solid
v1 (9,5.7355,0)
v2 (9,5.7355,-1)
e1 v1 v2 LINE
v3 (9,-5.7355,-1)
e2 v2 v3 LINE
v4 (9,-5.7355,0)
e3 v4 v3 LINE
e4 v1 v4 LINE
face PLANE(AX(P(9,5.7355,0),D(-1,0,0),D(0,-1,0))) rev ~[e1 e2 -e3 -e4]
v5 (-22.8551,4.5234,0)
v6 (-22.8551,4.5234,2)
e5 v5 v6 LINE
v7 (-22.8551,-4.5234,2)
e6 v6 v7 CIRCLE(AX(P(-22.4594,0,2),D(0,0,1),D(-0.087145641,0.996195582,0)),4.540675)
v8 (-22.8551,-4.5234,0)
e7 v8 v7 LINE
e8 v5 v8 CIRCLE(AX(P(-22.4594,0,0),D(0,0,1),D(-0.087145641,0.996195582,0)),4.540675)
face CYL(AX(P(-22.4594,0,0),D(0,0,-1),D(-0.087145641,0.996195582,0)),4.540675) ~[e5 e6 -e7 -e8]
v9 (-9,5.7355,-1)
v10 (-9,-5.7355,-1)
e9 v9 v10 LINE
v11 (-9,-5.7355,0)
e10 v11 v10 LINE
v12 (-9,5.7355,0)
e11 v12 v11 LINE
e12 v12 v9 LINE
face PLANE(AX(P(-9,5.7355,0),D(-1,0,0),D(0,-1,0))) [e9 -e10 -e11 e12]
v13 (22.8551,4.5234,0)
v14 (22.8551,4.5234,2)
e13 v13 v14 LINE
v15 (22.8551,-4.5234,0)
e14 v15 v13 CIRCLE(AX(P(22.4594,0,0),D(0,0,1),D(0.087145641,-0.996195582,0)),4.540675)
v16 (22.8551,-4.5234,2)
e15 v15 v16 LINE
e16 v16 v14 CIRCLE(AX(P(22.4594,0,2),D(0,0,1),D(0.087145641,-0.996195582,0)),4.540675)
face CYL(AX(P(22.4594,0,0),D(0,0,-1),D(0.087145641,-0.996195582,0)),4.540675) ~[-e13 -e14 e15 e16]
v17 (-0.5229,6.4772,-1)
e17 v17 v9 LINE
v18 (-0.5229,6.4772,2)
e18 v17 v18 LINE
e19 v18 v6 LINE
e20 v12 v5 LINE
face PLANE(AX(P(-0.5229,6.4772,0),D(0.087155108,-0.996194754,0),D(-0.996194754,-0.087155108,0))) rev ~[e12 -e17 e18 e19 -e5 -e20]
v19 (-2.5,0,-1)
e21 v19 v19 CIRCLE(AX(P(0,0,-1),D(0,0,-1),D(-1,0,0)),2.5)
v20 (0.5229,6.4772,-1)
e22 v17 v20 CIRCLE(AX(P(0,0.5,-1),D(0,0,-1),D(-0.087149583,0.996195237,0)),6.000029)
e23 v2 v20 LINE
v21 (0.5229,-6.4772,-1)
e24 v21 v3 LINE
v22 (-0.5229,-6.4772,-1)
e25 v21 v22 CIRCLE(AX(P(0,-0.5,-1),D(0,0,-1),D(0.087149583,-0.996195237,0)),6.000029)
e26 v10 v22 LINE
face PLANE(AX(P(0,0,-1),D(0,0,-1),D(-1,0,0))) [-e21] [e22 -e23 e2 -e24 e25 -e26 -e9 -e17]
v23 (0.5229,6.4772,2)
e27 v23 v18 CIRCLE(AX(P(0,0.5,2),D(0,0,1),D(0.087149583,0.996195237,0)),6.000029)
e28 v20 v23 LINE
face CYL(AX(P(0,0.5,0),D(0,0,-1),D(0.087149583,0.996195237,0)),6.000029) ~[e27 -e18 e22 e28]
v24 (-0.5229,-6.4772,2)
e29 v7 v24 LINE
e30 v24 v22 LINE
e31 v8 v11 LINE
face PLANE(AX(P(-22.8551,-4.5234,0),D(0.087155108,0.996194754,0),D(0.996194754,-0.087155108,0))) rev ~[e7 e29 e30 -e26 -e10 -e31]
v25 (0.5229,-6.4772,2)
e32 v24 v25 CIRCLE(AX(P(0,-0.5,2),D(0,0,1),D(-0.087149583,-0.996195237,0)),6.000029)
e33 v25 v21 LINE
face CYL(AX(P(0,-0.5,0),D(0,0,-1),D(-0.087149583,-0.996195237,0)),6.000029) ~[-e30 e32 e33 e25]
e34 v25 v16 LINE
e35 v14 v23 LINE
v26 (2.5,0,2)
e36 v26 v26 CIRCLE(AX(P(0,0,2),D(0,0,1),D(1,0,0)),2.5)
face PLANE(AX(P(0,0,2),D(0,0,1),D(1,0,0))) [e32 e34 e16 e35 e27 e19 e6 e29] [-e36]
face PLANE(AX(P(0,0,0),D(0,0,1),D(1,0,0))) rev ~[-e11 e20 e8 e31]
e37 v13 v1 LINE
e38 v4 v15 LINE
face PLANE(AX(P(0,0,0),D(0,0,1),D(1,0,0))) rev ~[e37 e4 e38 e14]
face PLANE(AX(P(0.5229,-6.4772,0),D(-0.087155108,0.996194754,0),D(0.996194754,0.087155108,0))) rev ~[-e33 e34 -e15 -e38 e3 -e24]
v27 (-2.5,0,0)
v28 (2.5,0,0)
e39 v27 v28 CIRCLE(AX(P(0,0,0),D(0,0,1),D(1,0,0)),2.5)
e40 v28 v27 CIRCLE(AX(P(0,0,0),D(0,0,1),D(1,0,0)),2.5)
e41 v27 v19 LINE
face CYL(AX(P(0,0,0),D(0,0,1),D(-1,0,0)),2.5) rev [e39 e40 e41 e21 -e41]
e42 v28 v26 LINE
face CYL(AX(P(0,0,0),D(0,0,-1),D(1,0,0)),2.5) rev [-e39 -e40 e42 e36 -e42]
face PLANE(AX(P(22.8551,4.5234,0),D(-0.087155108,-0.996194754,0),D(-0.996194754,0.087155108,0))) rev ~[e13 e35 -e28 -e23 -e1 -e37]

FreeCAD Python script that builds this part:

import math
import FreeCAD as App
import Part
import Sketcher

V = App.Vector
Q = App.Units.Quantity

doc = App.newDocument("Part")
body = doc.addObject("PartDesign::Body", "Body")

# Sketch on XY plane
sketch1 = body.newObject("Sketcher::SketchObject", "Sketch")
sketch1.AttachmentSupport = (doc.getObject("XY_Plane"), [""])
sketch1.MapMode = "FlatFace"
sketch1.addGeometry(Part.ArcOfCircle(Part.Circle(V(22.4594, 0, 0), V(0, 0, 1), 4.540675), math.radians(-85.000581), math.radians(85.000581)), False)
sketch1.addGeometry(Part.LineSegment(V(22.8551, 4.5234, 0), V(0.5229, 6.4772, 0)), False)
sketch1.addGeometry(Part.ArcOfCircle(Part.Circle(V(0, 0.5, 0), V(0, 0, 1), 6.000029), math.radians(85.000354), math.radians(94.999646)), False)
sketch1.addGeometry(Part.LineSegment(V(-0.5229, 6.4772, 0), V(-22.8551, 4.5234, 0)), False)
sketch1.addGeometry(Part.ArcOfCircle(Part.Circle(V(-22.4594, 0, 0), V(0, 0, 1), 4.540675), math.radians(94.999419), math.radians(265.000581)), False)
sketch1.addGeometry(Part.LineSegment(V(-22.8551, -4.5234, 0), V(-0.5229, -6.4772, 0)), False)
sketch1.addGeometry(Part.ArcOfCircle(Part.Circle(V(0, -0.5, 0), V(0, 0, 1), 6.000029), math.radians(-94.999646), math.radians(-85.000354)), False)
sketch1.addGeometry(Part.LineSegment(V(0.5229, -6.4772, 0), V(22.8551, -4.5234, 0)), False)
sketch1.addGeometry(Part.Circle(V(0, 0, 0), V(0, 0, 1), 2.5), False)
sketch1.addConstraint(Sketcher.Constraint("Tangent", 0, 2, 1, 1))
sketch1.addConstraint(Sketcher.Constraint("Tangent", 1, 2, 2, 1))
sketch1.addConstraint(Sketcher.Constraint("Tangent", 2, 2, 3, 1))
sketch1.addConstraint(Sketcher.Constraint("Tangent", 3, 2, 4, 1))
sketch1.addConstraint(Sketcher.Constraint("Tangent", 4, 2, 5, 1))
sketch1.addConstraint(Sketcher.Constraint("Tangent", 5, 2, 6, 1))
sketch1.addConstraint(Sketcher.Constraint("Tangent", 6, 2, 7, 1))
sketch1.addConstraint(Sketcher.Constraint("Tangent", 7, 2, 0, 1))
sketch1.addConstraint(Sketcher.Constraint("Coincident", 8, 3, -1, 1))
sketch1.addConstraint(Sketcher.Constraint("Equal", 0, 4))
sketch1.addConstraint(Sketcher.Constraint("Equal", 2, 6))
sketch1.addConstraint(Sketcher.Constraint("Symmetric", 0, 3, 4, 3, -1, 1))
sketch1.addConstraint(Sketcher.Constraint("Symmetric", 2, 3, 6, 3, -1, 1))
sketch1.addConstraint(Sketcher.Constraint("Symmetric", 1, 2, 2, 2, -2))
sketch1.addConstraint(Sketcher.Constraint("Diameter", 8, 5.0))
sketch1.addConstraint(Sketcher.Constraint("Radius", 2, 6.0))
sketch1.addConstraint(Sketcher.Constraint("Angle", 5, Q("-5 deg")))
sketch1.addConstraint(Sketcher.Constraint("DistanceY", 6, 3, 2, 3, 1.0))
sketch1.addConstraint(Sketcher.Constraint("Radius", 0, 4.5407))
pad1 = body.newObject("PartDesign::Pad", "Pad")
pad1.Profile = sketch1
pad1.Length = 2

# Sketch on XY plane
sketch2 = body.newObject("Sketcher::SketchObject", "Sketch001")
sketch2.AttachmentSupport = (doc.getObject("XY_Plane"), [""])
sketch2.MapMode = "FlatFace"
sketch2.addGeometry(Part.LineSegment(V(-9.000005, 5.735555, 0), V(-0.5229, 6.4772, 0)), False)
sketch2.addGeometry(Part.ArcOfCircle(Part.Circle(V(0, 0.5, 0), V(0, 0, 1), 6.000029), math.radians(85.000354), math.radians(94.999646)), False)
sketch2.addGeometry(Part.LineSegment(V(0.5229, 6.4772, 0), V(9.000005, 5.735555, 0)), False)
sketch2.addGeometry(Part.LineSegment(V(9, 5.7355, 0), V(9, -5.7355, 0)), False)
sketch2.addGeometry(Part.LineSegment(V(9.000005, -5.735555, 0), V(0.5229, -6.4772, 0)), False)
sketch2.addGeometry(Part.ArcOfCircle(Part.Circle(V(0, -0.5, 0), V(0, 0, 1), 6.000029), math.radians(-94.999646), math.radians(-85.000354)), False)
sketch2.addGeometry(Part.LineSegment(V(-0.5229, -6.4772, 0), V(-9.000005, -5.735555, 0)), False)
sketch2.addGeometry(Part.LineSegment(V(-9, -5.7355, 0), V(-9, 5.7355, 0)), False)
sketch2.addGeometry(Part.Circle(V(0, 0, 0), V(0, 0, 1), 2.5), False)
sketch2.addConstraint(Sketcher.Constraint("Tangent", 0, 2, 1, 2))
sketch2.addConstraint(Sketcher.Constraint("Tangent", 1, 1, 2, 1))
sketch2.addConstraint(Sketcher.Constraint("Coincident", 2, 2, 3, 1))
sketch2.addConstraint(Sketcher.Constraint("Coincident", 3, 2, 4, 1))
sketch2.addConstraint(Sketcher.Constraint("Tangent", 4, 2, 5, 2))
sketch2.addConstraint(Sketcher.Constraint("Tangent", 5, 1, 6, 1))
sketch2.addConstraint(Sketcher.Constraint("Coincident", 6, 2, 7, 1))
sketch2.addConstraint(Sketcher.Constraint("Coincident", 7, 2, 0, 1))
sketch2.addConstraint(Sketcher.Constraint("Vertical", 3))
sketch2.addConstraint(Sketcher.Constraint("Vertical", 7))
sketch2.addConstraint(Sketcher.Constraint("Coincident", 8, 3, -1, 1))
sketch2.addConstraint(Sketcher.Constraint("Equal", 1, 5))
sketch2.addConstraint(Sketcher.Constraint("Symmetric", 1, 3, 5, 3, -1, 1))
sketch2.addConstraint(Sketcher.Constraint("Symmetric", 2, 2, 6, 2, -1, 1))
sketch2.addConstraint(Sketcher.Constraint("Symmetric", 0, 2, 1, 1, -2))
sketch2.addConstraint(Sketcher.Constraint("Parallel", 0, 4))
sketch2.addConstraint(Sketcher.Constraint("Diameter", 8, 5.0))
sketch2.addConstraint(Sketcher.Constraint("DistanceX", -1, 1, 2, 2, 9.0))
sketch2.addConstraint(Sketcher.Constraint("Radius", 1, 6.0))
sketch2.addConstraint(Sketcher.Constraint("Angle", 0, Q("5 deg")))
sketch2.addConstraint(Sketcher.Constraint("DistanceY", 5, 3, 1, 3, 1.0))
pad2 = body.newObject("PartDesign::Pad", "Pad001")
pad2.Profile = sketch2
pad2.Length = 1
pad2.Reversed = True

doc.recompute()
